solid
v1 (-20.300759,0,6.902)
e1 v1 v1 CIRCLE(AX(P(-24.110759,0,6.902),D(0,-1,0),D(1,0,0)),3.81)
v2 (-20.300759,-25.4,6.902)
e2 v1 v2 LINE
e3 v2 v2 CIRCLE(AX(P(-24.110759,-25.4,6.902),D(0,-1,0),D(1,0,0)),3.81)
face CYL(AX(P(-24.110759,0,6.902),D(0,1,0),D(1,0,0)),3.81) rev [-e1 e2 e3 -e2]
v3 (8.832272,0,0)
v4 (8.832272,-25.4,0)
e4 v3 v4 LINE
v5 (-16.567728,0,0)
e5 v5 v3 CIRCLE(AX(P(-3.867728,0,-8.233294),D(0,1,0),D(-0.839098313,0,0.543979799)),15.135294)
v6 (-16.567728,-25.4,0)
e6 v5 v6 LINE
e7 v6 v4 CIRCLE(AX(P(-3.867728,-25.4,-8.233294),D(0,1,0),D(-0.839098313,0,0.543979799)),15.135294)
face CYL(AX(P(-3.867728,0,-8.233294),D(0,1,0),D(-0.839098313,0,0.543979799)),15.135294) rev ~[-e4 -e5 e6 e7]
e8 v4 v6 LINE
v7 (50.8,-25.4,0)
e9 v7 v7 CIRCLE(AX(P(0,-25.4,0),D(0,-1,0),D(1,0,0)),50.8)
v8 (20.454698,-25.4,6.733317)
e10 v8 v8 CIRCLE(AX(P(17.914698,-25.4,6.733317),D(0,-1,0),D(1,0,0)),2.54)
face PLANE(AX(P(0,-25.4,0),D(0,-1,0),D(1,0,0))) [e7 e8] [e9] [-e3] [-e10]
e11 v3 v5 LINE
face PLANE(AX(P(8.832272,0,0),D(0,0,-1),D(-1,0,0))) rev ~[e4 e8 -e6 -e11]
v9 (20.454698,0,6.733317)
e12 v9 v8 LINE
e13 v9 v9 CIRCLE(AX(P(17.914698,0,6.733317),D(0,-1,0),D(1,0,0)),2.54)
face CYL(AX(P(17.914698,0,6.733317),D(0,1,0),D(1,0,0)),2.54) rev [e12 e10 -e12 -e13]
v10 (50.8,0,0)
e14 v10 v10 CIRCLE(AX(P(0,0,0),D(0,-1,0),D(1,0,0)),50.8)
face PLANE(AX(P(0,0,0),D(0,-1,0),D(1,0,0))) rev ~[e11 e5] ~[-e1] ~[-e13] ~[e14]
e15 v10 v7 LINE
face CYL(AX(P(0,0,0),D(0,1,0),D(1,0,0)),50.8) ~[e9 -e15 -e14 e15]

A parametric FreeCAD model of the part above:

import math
import FreeCAD as App
import Part
import Sketcher
Q = App.Units.Quantity

doc = App.newDocument("Part")
body = doc.addObject("PartDesign::Body", "Body")

sketch1 = body.newObject("Sketcher::SketchObject", "Sketch")
sketch1.AttachmentSupport = (doc.getObject("XZ_Plane"), [""])
sketch1.MapMode = "FlatFace"
sketch1.addGeometry(Part.Circle(App.Vector(0, 0, 0), App.Vector(0, 0, 1), 50.8), False)
sketch1.addGeometry(Part.ArcOfCircle(Part.Circle(App.Vector(-3.9, -8.2, 0), App.Vector(0, 0, 1), 15.1), math.radians(33), math.radians(147)), False)
sketch1.addGeometry(Part.LineSegment(App.Vector(8.8, 0, 0), App.Vector(-16.6, 0, 0)), False)
sketch1.addGeometry(Part.Circle(App.Vector(-24.1, 6.9, 0), App.Vector(0, 0, 1), 3.8), False)
sketch1.addGeometry(Part.Circle(App.Vector(17.9, 6.7, 0), App.Vector(0, 0, 1), 2.5), False)
sketch1.addConstraint(Sketcher.Constraint("Coincident", 1, 1, 2, 1))
sketch1.addConstraint(Sketcher.Constraint("Coincident", 2, 2, 1, 2))
sketch1.addConstraint(Sketcher.Constraint("Horizontal", 2))
sketch1.addConstraint(Sketcher.Constraint("Coincident", 0, 3, -1, 1))
sketch1.addConstraint(Sketcher.Constraint("PointOnObject", 1, 1, -1))
sketch1.addConstraint(Sketcher.Constraint("Diameter", 0, Q("4 in")))
sketch1.addConstraint(Sketcher.Constraint("Diameter", 3, Q("0.3 in")))
sketch1.addConstraint(Sketcher.Constraint("Diameter", 4, Q("0.2 in")))
sketch1.addConstraint(Sketcher.Constraint("DistanceX", 2, 2, 2, 1, Q("1 in")))
sketch1.addConstraint(Sketcher.Constraint("Radius", 1, Q("15.135294 mm")))
sketch1.addConstraint(Sketcher.Constraint("DistanceY", -1, 1, 3, 3, Q("6.902 mm")))
sketch1.addConstraint(Sketcher.Constraint("DistanceX", -1, 1, 4, 3, Q("17.914698 mm")))
sketch1.addConstraint(Sketcher.Constraint("DistanceX", 1, 3, -1, 1, Q("3.867728 mm")))
sketch1.addConstraint(Sketcher.Constraint("DistanceX", 3, 3, -1, 1, Q("24.110759 mm")))
sketch1.addConstraint(Sketcher.Constraint("DistanceY", 1, 3, 4, 3, Q("14.966611 mm")))
pad1 = body.newObject("PartDesign::Pad", "Pad")
pad1.Profile = sketch1
pad1.Length = Q("1 in")

doc.recompute()
